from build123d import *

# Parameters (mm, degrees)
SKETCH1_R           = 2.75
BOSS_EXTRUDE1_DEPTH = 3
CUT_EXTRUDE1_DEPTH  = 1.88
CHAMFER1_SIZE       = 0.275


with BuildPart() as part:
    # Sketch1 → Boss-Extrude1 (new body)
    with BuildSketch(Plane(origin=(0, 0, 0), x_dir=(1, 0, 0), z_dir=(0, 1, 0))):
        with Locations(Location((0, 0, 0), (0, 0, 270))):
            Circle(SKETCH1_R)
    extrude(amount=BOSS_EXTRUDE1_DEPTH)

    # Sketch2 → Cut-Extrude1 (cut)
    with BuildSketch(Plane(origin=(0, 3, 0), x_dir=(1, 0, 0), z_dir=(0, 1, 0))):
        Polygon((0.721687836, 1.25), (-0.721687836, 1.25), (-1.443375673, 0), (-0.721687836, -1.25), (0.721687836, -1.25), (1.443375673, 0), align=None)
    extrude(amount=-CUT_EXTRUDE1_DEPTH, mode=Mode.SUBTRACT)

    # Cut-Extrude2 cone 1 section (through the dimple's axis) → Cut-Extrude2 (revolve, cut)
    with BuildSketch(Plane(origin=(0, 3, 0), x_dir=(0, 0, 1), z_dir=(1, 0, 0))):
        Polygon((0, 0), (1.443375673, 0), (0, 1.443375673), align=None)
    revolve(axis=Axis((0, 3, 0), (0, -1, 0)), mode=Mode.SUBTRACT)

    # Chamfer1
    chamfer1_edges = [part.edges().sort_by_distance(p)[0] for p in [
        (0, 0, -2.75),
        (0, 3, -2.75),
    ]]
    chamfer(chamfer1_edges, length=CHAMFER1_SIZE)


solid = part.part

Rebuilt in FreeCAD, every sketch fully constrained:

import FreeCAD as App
import Part
import Sketcher
Q = App.Units.Quantity


def edges_at(feature, points):
    """Names of the edges that pass closest to the given points."""
    edges = feature.Shape.Edges
    near = lambda p: min(range(len(edges)), key=lambda i: edges[i].distToShape(Part.Vertex(*p))[0])
    return sorted({f"Edge{near(p) + 1}" for p in points})

doc = App.newDocument("Part")
body = doc.addObject("PartDesign::Body", "Body")

# Sketch on XZ plane
sketch1 = body.newObject("Sketcher::SketchObject", "Sketch")
sketch1.AttachmentSupport = (doc.getObject("XZ_Plane"), [""])
sketch1.MapMode = "FlatFace"
sketch1.addGeometry(Part.Circle(App.Vector(0, 0, 0), App.Vector(0, 0, 1), 2.75), False)
sketch1.addConstraint([
    Sketcher.Constraint("Coincident", 0, 3, -1, 1),
    Sketcher.Constraint("Diameter", 0, Q("5.5 mm")),
])
pad1 = body.newObject("PartDesign::Pad", "Pad")
pad1.Profile = sketch1
pad1.Length = 3
pad1.Reversed = True

# Sketch on XZ plane
sketch2 = body.newObject("Sketcher::SketchObject", "Sketch001")
sketch2.AttachmentSupport = (doc.getObject("XZ_Plane"), [""])
sketch2.MapMode = "FlatFace"
sketch2.AttachmentOffset = App.Placement(App.Vector(0, 0, -3), App.Rotation())
sketch2.addGeometry([
    Part.LineSegment(App.Vector(0.721688, -1.25, 0), App.Vector(-0.721688, -1.25, 0)),  # 0
    Part.LineSegment(App.Vector(-0.721688, -1.25, 0), App.Vector(-1.443376, 0, 0)),  # 1
    Part.LineSegment(App.Vector(-1.443376, 0, 0), App.Vector(-0.721688, 1.25, 0)),  # 2
    Part.LineSegment(App.Vector(-0.721688, 1.25, 0), App.Vector(0.721688, 1.25, 0)),  # 3
    Part.LineSegment(App.Vector(0.721688, 1.25, 0), App.Vector(1.443376, 0, 0)),  # 4
    Part.LineSegment(App.Vector(1.443376, 0, 0), App.Vector(0.721688, -1.25, 0)),  # 5
], False)
sketch2.addConstraint([
    Sketcher.Constraint("Coincident", 0, 2, 1, 1),
    Sketcher.Constraint("Coincident", 1, 2, 2, 1),
    Sketcher.Constraint("Coincident", 2, 2, 3, 1),
    Sketcher.Constraint("Coincident", 3, 2, 4, 1),
    Sketcher.Constraint("Coincident", 4, 2, 5, 1),
    Sketcher.Constraint("Coincident", 5, 2, 0, 1),
    Sketcher.Constraint("Horizontal", 0),
    Sketcher.Constraint("Horizontal", 3),
    Sketcher.Constraint("Symmetric", 0, 2, 3, 2, -1, 1),
    Sketcher.Constraint("Symmetric", 1, 2, 4, 2, -1, 1),
    Sketcher.Constraint("PointOnObject", 1, 2, -1),
    Sketcher.Constraint("Parallel", 2, 5),
    Sketcher.Constraint("Vertical", 0, 2, 2, 2),
    Sketcher.Constraint("Angle", 1, Q("120 deg")),
    Sketcher.Constraint("DistanceY", 0, 2, 2, 2, Q("2.5 mm")),
    Sketcher.Constraint("DistanceX", 0, 2, 0, 1, Q("1.443376 mm")),
])
pocket1 = body.newObject("PartDesign::Pocket", "Pocket")
pocket1.Profile = sketch2
pocket1.Length = 1.88
pocket1.Reversed = True

# Sketch on YZ plane
sketch3 = body.newObject("Sketcher::SketchObject", "Sketch002")
sketch3.AttachmentSupport = (doc.getObject("YZ_Plane"), [""])
sketch3.MapMode = "FlatFace"
sketch3.addGeometry([
    Part.LineSegment(App.Vector(3, 0, 0), App.Vector(3, 1.443376, 0)),
    Part.LineSegment(App.Vector(3, 1.443376, 0), App.Vector(1.556624, 0, 0)),
    Part.LineSegment(App.Vector(1.556624, 0, 0), App.Vector(3, 0, 0)),
], False)
sketch3.addConstraint([
    Sketcher.Constraint("Coincident", 0, 2, 1, 1),
    Sketcher.Constraint("Coincident", 1, 2, 2, 1),
    Sketcher.Constraint("Coincident", 2, 2, 0, 1),
    Sketcher.Constraint("Vertical", 0),
    Sketcher.Constraint("Horizontal", 2),
    Sketcher.Constraint("PointOnObject", 1, 2, -1),
    Sketcher.Constraint("Equal", 2, 0),
    Sketcher.Constraint("DistanceX", -1, 1, 0, 2, Q("3 mm")),
    Sketcher.Constraint("Distance", 1, Q("2.041241 mm")),
])
groove = body.newObject("PartDesign::Groove", "Groove")
groove.Profile = sketch3
groove.ReferenceAxis = (sketch3, ["H_Axis"])
groove.Angle = 360
doc.recompute()

chamfer = body.newObject("PartDesign::Chamfer", "Chamfer")
chamfer.Base = (groove, edges_at(groove, [(0, 0, -2.75), (0, 3, -2.75)]))
chamfer.Size = 0.275

doc.recompute()
